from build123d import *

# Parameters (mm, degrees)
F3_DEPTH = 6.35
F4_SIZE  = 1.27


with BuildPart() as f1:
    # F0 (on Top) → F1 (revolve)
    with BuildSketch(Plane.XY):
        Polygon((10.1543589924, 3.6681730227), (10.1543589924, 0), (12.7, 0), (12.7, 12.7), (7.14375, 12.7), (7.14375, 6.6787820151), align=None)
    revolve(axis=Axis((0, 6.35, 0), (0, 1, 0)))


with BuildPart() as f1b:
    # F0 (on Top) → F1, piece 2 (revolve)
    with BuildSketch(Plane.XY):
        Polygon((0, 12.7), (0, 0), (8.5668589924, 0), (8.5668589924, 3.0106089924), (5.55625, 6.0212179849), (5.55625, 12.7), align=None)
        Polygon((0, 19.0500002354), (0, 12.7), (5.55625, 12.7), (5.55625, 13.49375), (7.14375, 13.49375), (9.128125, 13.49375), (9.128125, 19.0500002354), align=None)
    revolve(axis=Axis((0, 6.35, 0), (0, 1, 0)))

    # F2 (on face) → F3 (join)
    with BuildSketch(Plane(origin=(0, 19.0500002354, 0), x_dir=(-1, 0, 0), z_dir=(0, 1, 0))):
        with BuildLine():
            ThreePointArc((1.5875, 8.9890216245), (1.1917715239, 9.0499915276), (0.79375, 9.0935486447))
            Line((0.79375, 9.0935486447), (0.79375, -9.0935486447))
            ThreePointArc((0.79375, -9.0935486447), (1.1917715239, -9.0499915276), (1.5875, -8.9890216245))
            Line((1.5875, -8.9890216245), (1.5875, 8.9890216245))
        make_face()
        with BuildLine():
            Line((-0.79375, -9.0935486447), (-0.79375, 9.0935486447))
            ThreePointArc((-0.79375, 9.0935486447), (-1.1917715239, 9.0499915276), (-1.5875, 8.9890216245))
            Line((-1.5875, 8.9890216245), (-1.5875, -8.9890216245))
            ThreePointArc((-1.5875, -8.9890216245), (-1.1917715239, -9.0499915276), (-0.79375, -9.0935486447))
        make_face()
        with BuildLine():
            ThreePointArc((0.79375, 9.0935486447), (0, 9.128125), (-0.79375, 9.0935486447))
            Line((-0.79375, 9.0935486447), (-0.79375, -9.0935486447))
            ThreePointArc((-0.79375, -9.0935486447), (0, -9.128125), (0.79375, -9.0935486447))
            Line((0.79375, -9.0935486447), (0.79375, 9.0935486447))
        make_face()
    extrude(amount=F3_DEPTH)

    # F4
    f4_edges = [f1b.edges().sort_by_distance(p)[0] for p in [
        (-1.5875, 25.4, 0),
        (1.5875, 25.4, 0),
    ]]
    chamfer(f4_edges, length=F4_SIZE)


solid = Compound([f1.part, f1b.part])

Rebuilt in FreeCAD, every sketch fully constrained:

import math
import FreeCAD as App
import Part
import Sketcher

V = App.Vector
Q = App.Units.Quantity


def edges_at(feature, points):
    """Names of the edges that pass closest to the given points."""
    edges = feature.Shape.Edges
    near = lambda p: min(range(len(edges)), key=lambda i: edges[i].distToShape(Part.Vertex(*p))[0])
    return sorted({f"Edge{near(p) + 1}" for p in points})


def add_polygon(sketch, points):
    """Adds a closed chain of lines whose ends are joined by coincident constraints."""
    first, n = sketch.GeometryCount, len(points)
    for a, b in zip(points, points[1:] + points[:1]):
        sketch.addGeometry(Part.LineSegment(App.Vector(*a, 0), App.Vector(*b, 0)), False)
    for i in range(n):
        sketch.addConstraint(Sketcher.Constraint("Coincident", first + i, 2, first + (i + 1) % n, 1))

doc = App.newDocument("Part")
params = doc.addObject("Spreadsheet::Sheet", "Params")
for row, (alias, value) in enumerate([
    ("sketch1_height", "0.5 in"),
    ("sketch1_width", "0.21875 in"),
    ("revolution_angle", "360 deg"),
    ("sketch2_height", "0.75 in"),
    ("sketch2_width", "0.140625 in"),
    ("sketch2_width2", "0.359375 in"),
    ("sketch2_height2", "0.21875 in"),
    ("revolution2_angle", "360 deg"),
    ("sketch3_radius", "0.359375 in"),
    ("pad1_length", "0.25 in"),
    ("chamfer_size", "0.05 in"),
], start=1):
    params.set(f"A{row}", alias)
    params.set(f"B{row}", "=" + value)
    params.setAlias(f"B{row}", alias)

body = doc.addObject("PartDesign::Body", "Body")

sketch1 = body.newObject("Sketcher::SketchObject", "Sketch")
sketch1.AttachmentSupport = (doc.getObject("XY_Plane"), [""])
sketch1.MapMode = "FlatFace"
add_polygon(sketch1, [(10.2, 3.7), (10.2, 0), (12.7, 0), (12.7, 12.7), (7.1, 12.7), (7.1, 6.7)])
sketch1.addConstraint([
    Sketcher.Constraint("Vertical", 0),
    Sketcher.Constraint("Horizontal", 1),
    Sketcher.Constraint("Vertical", 2),
    Sketcher.Constraint("Horizontal", 3),
    Sketcher.Constraint("Vertical", 4),
    Sketcher.Constraint("PointOnObject", 0, 2, -1),
    Sketcher.Constraint("DistanceY", 2, 1, 2, 2, Q("0.5 in")),
    Sketcher.Constraint("Angle", 5, Q("-45 deg")),
    Sketcher.Constraint("DistanceX", -1, 1, 1, 2, Q("0.5 in")),
    Sketcher.Constraint("DistanceX", 3, 2, 3, 1, Q("0.21875 in")),
    Sketcher.Constraint("DistanceX", 1, 1, 1, 2, 2.545641),
    Sketcher.Constraint("DistanceY", 0, 2, 0, 1, 3.668173),
])
sketch1.setExpression("Constraints[12]", "Params.sketch1_height")
sketch1.setExpression("Constraints[15]", "Params.sketch1_width")
revolution = body.newObject("PartDesign::Revolution", "Revolution")
revolution.Profile = sketch1
revolution.ReferenceAxis = (sketch1, ["V_Axis"])
revolution.setExpression("Angle", "Params.revolution_angle")
body2 = doc.addObject("PartDesign::Body", "Body001")

sketch2 = body2.newObject("Sketcher::SketchObject", "Sketch001")
sketch2.AttachmentSupport = (doc.getObject("XY_Plane001"), [""])
sketch2.MapMode = "FlatFace"
add_polygon(sketch2, [(0, 0), (8.6, 0), (8.6, 3), (5.6, 6), (5.6, 13.5), (9.1, 13.5), (9.1, 19.1), (0, 19.1)])
sketch2.addConstraint([
    Sketcher.Constraint("Horizontal", 0),
    Sketcher.Constraint("Vertical", 1),
    Sketcher.Constraint("Vertical", 3),
    Sketcher.Constraint("Horizontal", 4),
    Sketcher.Constraint("Vertical", 5),
    Sketcher.Constraint("Horizontal", 6),
    Sketcher.Constraint("Vertical", 7),
    Sketcher.Constraint("Coincident", 7, 2, -1, 1),
    Sketcher.Constraint("Angle", 2, Q("135 deg")),
    Sketcher.Constraint("DistanceY", 7, 2, 7, 1, Q("0.75 in")),
    Sketcher.Constraint("DistanceX", 4, 1, 4, 2, Q("0.140625 in")),
    Sketcher.Constraint("DistanceX", 6, 2, 6, 1, Q("0.359375 in")),
    Sketcher.Constraint("DistanceY", 5, 1, 5, 2, Q("0.21875 in")),
    Sketcher.Constraint("DistanceX", 0, 1, 0, 2, 8.566859),
    Sketcher.Constraint("DistanceY", 1, 1, 1, 2, 3.010609),
])
sketch2.setExpression("Constraints[17]", "Params.sketch2_height")
sketch2.setExpression("Constraints[18]", "Params.sketch2_width")
sketch2.setExpression("Constraints[19]", "Params.sketch2_width2")
sketch2.setExpression("Constraints[20]", "Params.sketch2_height2")
revolution2 = body2.newObject("PartDesign::Revolution", "Revolution001")
revolution2.Profile = sketch2
revolution2.ReferenceAxis = (sketch2, ["V_Axis"])
revolution2.setExpression("Angle", "Params.revolution2_angle")

sketch3 = body2.newObject("Sketcher::SketchObject", "Sketch002")
sketch3.AttachmentSupport = (doc.getObject("XZ_Plane001"), [""])
sketch3.MapMode = "FlatFace"
sketch3.AttachmentOffset = App.Placement(V(0, 0, -0.75 * 25.4), App.Rotation())
sketch3.addGeometry([
    Part.ArcOfCircle(Part.Circle(V(0, 0, 0), V(0, 0, 1), 9.1), math.radians(94.99), math.radians(100.02)),
    Part.ArcOfCircle(Part.Circle(V(0, 0, 0), V(0, 0, 1), 9.1), math.radians(85.01), math.radians(94.99)),
    Part.ArcOfCircle(Part.Circle(V(0, 0, 0), V(0, 0, 1), 9.1), math.radians(79.98), math.radians(85.01)),
    Part.LineSegment(V(1.6, 9, 0), V(1.6, -9, 0)),
    Part.ArcOfCircle(Part.Circle(V(0, 0, 0), V(0, 0, 1), 9.1), math.radians(-85.01), math.radians(-79.98)),
    Part.ArcOfCircle(Part.Circle(V(0, 0, 0), V(0, 0, 1), 9.1), math.radians(-94.99), math.radians(-85.01)),
    Part.ArcOfCircle(Part.Circle(V(0, 0, 0), V(0, 0, 1), 9.1), math.radians(-100.02), math.radians(-94.99)),
    Part.LineSegment(V(-1.6, -9, 0), V(-1.6, 9, 0)),
], False)
sketch3.addConstraint([
    Sketcher.Constraint("Tangent", 0, 1, 1, 2),
    Sketcher.Constraint("Tangent", 1, 1, 2, 2),
    Sketcher.Constraint("Coincident", 2, 1, 3, 1),
    Sketcher.Constraint("Coincident", 3, 2, 4, 2),
    Sketcher.Constraint("Tangent", 4, 1, 5, 2),
    Sketcher.Constraint("Tangent", 5, 1, 6, 2),
    Sketcher.Constraint("Coincident", 6, 1, 7, 1),
    Sketcher.Constraint("Coincident", 7, 2, 0, 2),
    Sketcher.Constraint("Vertical", 3),
    Sketcher.Constraint("Vertical", 7),
    Sketcher.Constraint("Coincident", 0, 3, -1, 1),
    Sketcher.Constraint("Coincident", 2, 3, -1, 1),
    Sketcher.Constraint("Coincident", 4, 3, -1, 1),
    Sketcher.Constraint("Coincident", 6, 3, -1, 1),
    Sketcher.Constraint("Equal", 2, 4),
    Sketcher.Constraint("Horizontal", 0, 1, 1, 1),
    Sketcher.Constraint("Horizontal", 4, 1, 5, 1),
    Sketcher.Constraint("Horizontal", 3, 2, 6, 1),
    Sketcher.Constraint("Vertical", 1, 1, 4, 1),
    Sketcher.Constraint("Radius", 0, Q("0.359375 in")),
    Sketcher.Constraint("DistanceX", 0, 1, -1, 1, Q("0.03125 in")),
    Sketcher.Constraint("DistanceX", -1, 1, 2, 1, Q("0.0625 in")),
])
sketch3.setExpression("Constraints[19]", "Params.sketch3_radius")
pad1 = body2.newObject("PartDesign::Pad", "Pad")
pad1.Profile = sketch3
pad1.setExpression("Length", "Params.pad1_length")
pad1.Reversed = True
doc.recompute()

chamfer = body2.newObject("PartDesign::Chamfer", "Chamfer")
chamfer.Base = (pad1, edges_at(pad1, [(-1.587, 25.4, 0), (1.587, 25.4, 0)]))
chamfer.setExpression("Size", "Params.chamfer_size")

doc.recompute()
